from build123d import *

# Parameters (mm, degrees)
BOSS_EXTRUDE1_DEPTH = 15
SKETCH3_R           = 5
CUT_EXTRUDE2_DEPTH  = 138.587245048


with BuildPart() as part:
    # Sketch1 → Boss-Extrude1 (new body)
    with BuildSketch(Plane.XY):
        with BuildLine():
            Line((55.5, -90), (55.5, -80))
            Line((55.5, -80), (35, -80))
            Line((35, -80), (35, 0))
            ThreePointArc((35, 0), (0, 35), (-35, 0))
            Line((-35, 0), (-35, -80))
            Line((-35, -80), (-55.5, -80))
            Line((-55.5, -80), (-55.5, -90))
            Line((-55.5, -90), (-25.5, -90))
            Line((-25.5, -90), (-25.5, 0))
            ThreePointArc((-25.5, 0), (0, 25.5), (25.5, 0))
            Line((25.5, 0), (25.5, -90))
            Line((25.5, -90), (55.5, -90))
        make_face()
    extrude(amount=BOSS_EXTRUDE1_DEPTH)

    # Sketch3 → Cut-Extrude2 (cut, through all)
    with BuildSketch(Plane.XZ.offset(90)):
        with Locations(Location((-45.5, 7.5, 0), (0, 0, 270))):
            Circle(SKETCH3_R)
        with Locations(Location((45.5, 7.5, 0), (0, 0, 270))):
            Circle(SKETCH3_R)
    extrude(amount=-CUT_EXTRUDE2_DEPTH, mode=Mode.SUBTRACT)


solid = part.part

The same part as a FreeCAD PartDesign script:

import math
import FreeCAD as App
import Part
import Sketcher
from FreeCAD import Vector
Q = App.Units.Quantity

doc = App.newDocument("Part")
body = doc.addObject("PartDesign::Body", "Body")

# Sketch on XY plane
sketch1 = doc.addObject("Sketcher::SketchObject", "Sketch")
body.addObject(sketch1)
sketch1.AttachmentSupport = (doc.XY_Plane, [""])
sketch1.MapMode = "FlatFace"
sketch1.addGeometry(Part.LineSegment(Vector(55.5, -90, 0), Vector(55.5, -80, 0)), False)
sketch1.addGeometry(Part.LineSegment(Vector(55.5, -80, 0), Vector(35, -80, 0)), False)
sketch1.addGeometry(Part.LineSegment(Vector(35, -80, 0), Vector(35, 0, 0)), False)
sketch1.addGeometry(Part.ArcOfCircle(Part.Circle(Vector(0, 0, 0), Vector(0, 0, 1), 35), math.radians(0), math.radians(180)), False)
sketch1.addGeometry(Part.LineSegment(Vector(-35, 0, 0), Vector(-35, -80, 0)), False)
sketch1.addGeometry(Part.LineSegment(Vector(-35, -80, 0), Vector(-55.5, -80, 0)), False)
sketch1.addGeometry(Part.LineSegment(Vector(-55.5, -80, 0), Vector(-55.5, -90, 0)), False)
sketch1.addGeometry(Part.LineSegment(Vector(-55.5, -90, 0), Vector(-25.5, -90, 0)), False)
sketch1.addGeometry(Part.LineSegment(Vector(-25.5, -90, 0), Vector(-25.5, 0, 0)), False)
sketch1.addGeometry(Part.ArcOfCircle(Part.Circle(Vector(0, 0, 0), Vector(0, 0, 1), 25.5), math.radians(0), math.radians(180)), False)
sketch1.addGeometry(Part.LineSegment(Vector(25.5, 0, 0), Vector(25.5, -90, 0)), False)
sketch1.addGeometry(Part.LineSegment(Vector(25.5, -90, 0), Vector(55.5, -90, 0)), False)
sketch1.addConstraint(Sketcher.Constraint("Coincident", 0, 2, 1, 1))
sketch1.addConstraint(Sketcher.Constraint("Coincident", 1, 2, 2, 1))
sketch1.addConstraint(Sketcher.Constraint("Tangent", 2, 2, 3, 1))
sketch1.addConstraint(Sketcher.Constraint("Tangent", 3, 2, 4, 1))
sketch1.addConstraint(Sketcher.Constraint("Coincident", 4, 2, 5, 1))
sketch1.addConstraint(Sketcher.Constraint("Coincident", 5, 2, 6, 1))
sketch1.addConstraint(Sketcher.Constraint("Coincident", 6, 2, 7, 1))
sketch1.addConstraint(Sketcher.Constraint("Coincident", 7, 2, 8, 1))
sketch1.addConstraint(Sketcher.Constraint("Tangent", 8, 2, 9, 2))
sketch1.addConstraint(Sketcher.Constraint("Tangent", 9, 1, 10, 1))
sketch1.addConstraint(Sketcher.Constraint("Coincident", 10, 2, 11, 1))
sketch1.addConstraint(Sketcher.Constraint("Coincident", 11, 2, 0, 1))
sketch1.addConstraint(Sketcher.Constraint("Vertical", 0))
sketch1.addConstraint(Sketcher.Constraint("Horizontal", 1))
sketch1.addConstraint(Sketcher.Constraint("Vertical", 2))
sketch1.addConstraint(Sketcher.Constraint("Vertical", 4))
sketch1.addConstraint(Sketcher.Constraint("Horizontal", 5))
sketch1.addConstraint(Sketcher.Constraint("Vertical", 6))
sketch1.addConstraint(Sketcher.Constraint("Horizontal", 7))
sketch1.addConstraint(Sketcher.Constraint("Vertical", 8))
sketch1.addConstraint(Sketcher.Constraint("Vertical", 10))
sketch1.addConstraint(Sketcher.Constraint("Horizontal", 11))
sketch1.addConstraint(Sketcher.Constraint("Coincident", 3, 3, -1, 1))
sketch1.addConstraint(Sketcher.Constraint("Coincident", 9, 3, -1, 1))
sketch1.addConstraint(Sketcher.Constraint("Symmetric", 0, 2, 5, 2, -2))
sketch1.addConstraint(Sketcher.Constraint("Horizontal", 7, 2, 10, 2))
sketch1.addConstraint(Sketcher.Constraint("Radius", 3, Q("35 mm")))
sketch1.addConstraint(Sketcher.Constraint("Radius", 9, Q("25.5 mm")))
sketch1.addConstraint(Sketcher.Constraint("DistanceX", 7, 1, 7, 2, Q("30 mm")))
sketch1.addConstraint(Sketcher.Constraint("DistanceY", 0, 1, 0, 2, Q("10 mm")))
sketch1.addConstraint(Sketcher.Constraint("DistanceY", 2, 1, 2, 2, Q("80 mm")))
pad1 = doc.addObject("PartDesign::Pad", "Pad")
body.addObject(pad1)
pad1.Profile = sketch1
pad1.Length = 15

# Sketch on XZ plane
sketch2 = doc.addObject("Sketcher::SketchObject", "Sketch001")
body.addObject(sketch2)
sketch2.AttachmentSupport = (doc.XZ_Plane, [""])
sketch2.MapMode = "FlatFace"
sketch2.AttachmentOffset = App.Placement(Vector(0, 0, 90), App.Rotation())
sketch2.addGeometry(Part.Circle(Vector(-45.5, 7.5, 0), Vector(0, 0, 1), 5), False)
sketch2.addGeometry(Part.Circle(Vector(45.5, 7.5, 0), Vector(0, 0, 1), 5), False)
sketch2.addConstraint(Sketcher.Constraint("Equal", 0, 1))
sketch2.addConstraint(Sketcher.Constraint("Symmetric", 0, 3, 1, 3, -2))
sketch2.addConstraint(Sketcher.Constraint("Diameter", 0, Q("10 mm")))
sketch2.addConstraint(Sketcher.Constraint("DistanceX", 0, 3, 1, 3, Q("91 mm")))
sketch2.addConstraint(Sketcher.Constraint("DistanceY", -1, 1, 0, 3, Q("7.5 mm")))
pocket1 = doc.addObject("PartDesign::Pocket", "Pocket")
body.addObject(pocket1)
pocket1.Profile = sketch2
pocket1.Type = "ThroughAll"

doc.recompute()
